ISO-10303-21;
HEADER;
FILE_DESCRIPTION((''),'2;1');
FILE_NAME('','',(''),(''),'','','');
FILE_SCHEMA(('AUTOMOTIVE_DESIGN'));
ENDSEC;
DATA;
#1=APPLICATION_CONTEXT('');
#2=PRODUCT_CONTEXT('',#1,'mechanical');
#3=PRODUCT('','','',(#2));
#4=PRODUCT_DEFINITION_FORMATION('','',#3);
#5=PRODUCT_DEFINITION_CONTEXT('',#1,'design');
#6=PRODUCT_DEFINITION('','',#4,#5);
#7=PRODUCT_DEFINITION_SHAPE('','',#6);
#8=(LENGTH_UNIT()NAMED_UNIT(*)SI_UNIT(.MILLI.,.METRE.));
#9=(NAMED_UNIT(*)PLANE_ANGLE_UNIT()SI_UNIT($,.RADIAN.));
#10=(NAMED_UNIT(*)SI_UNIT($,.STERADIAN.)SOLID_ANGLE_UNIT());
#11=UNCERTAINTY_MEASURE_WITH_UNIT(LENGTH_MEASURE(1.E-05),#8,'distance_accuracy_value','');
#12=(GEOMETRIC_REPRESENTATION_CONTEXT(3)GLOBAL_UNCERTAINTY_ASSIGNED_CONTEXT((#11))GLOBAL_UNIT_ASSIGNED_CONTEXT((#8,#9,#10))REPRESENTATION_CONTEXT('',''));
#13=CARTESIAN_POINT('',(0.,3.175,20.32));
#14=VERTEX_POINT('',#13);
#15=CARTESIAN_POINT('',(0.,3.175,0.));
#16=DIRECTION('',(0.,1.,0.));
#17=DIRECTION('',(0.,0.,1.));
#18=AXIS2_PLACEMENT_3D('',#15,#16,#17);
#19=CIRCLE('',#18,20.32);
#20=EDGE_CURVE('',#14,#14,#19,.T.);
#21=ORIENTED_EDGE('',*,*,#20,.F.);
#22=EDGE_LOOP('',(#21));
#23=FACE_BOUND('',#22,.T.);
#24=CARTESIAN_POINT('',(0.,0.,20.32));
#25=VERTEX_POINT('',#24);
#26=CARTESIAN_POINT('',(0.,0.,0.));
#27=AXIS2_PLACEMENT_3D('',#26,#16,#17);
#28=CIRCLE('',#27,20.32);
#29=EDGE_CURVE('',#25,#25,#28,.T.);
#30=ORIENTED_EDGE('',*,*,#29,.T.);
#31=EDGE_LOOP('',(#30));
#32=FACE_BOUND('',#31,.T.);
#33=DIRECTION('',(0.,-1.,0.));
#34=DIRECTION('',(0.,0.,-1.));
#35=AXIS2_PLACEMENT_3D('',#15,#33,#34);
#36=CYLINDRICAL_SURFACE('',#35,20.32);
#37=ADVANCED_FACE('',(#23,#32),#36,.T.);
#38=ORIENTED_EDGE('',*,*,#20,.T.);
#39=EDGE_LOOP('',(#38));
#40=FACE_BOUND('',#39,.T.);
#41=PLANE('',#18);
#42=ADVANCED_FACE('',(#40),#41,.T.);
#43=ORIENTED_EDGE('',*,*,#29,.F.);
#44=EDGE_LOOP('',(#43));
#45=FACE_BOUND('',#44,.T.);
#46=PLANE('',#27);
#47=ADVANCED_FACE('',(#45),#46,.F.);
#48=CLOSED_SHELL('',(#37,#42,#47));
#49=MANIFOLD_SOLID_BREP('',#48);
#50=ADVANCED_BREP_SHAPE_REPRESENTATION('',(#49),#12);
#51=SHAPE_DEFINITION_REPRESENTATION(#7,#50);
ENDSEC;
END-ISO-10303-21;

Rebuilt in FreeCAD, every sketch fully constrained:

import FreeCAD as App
import Part
import Sketcher
Q = App.Units.Quantity

doc = App.newDocument("Part")
params = doc.addObject("Spreadsheet::Sheet", "Params")
for row, (alias, value) in enumerate([
    ("sketch1_diameter", "1.6 in"),
    ("pad1_length", "0.125 in"),
], start=1):
    params.set(f"A{row}", alias)
    params.set(f"B{row}", "=" + value)
    params.setAlias(f"B{row}", alias)

body = doc.addObject("PartDesign::Body", "Body")

sketch1 = doc.addObject("Sketcher::SketchObject", "Sketch")
body.addObject(sketch1)
sketch1.AttachmentSupport = (doc.XZ_Plane, [""])
sketch1.MapMode = "FlatFace"
sketch1.addGeometry(Part.Circle(App.Vector(0, 0, 0), App.Vector(0, 0, 1), 20), False)
sketch1.addConstraint(Sketcher.Constraint("Coincident", 0, 3, -1, 1))
sketch1.addConstraint(Sketcher.Constraint("Diameter", 0, Q("1.6 in")))
sketch1.setExpression("Constraints[1]", "Params.sketch1_diameter")
pad1 = doc.addObject("PartDesign::Pad", "Pad")
body.addObject(pad1)
pad1.Profile = sketch1
pad1.setExpression("Length", "Params.pad1_length")
pad1.Reversed = True

doc.recompute()
